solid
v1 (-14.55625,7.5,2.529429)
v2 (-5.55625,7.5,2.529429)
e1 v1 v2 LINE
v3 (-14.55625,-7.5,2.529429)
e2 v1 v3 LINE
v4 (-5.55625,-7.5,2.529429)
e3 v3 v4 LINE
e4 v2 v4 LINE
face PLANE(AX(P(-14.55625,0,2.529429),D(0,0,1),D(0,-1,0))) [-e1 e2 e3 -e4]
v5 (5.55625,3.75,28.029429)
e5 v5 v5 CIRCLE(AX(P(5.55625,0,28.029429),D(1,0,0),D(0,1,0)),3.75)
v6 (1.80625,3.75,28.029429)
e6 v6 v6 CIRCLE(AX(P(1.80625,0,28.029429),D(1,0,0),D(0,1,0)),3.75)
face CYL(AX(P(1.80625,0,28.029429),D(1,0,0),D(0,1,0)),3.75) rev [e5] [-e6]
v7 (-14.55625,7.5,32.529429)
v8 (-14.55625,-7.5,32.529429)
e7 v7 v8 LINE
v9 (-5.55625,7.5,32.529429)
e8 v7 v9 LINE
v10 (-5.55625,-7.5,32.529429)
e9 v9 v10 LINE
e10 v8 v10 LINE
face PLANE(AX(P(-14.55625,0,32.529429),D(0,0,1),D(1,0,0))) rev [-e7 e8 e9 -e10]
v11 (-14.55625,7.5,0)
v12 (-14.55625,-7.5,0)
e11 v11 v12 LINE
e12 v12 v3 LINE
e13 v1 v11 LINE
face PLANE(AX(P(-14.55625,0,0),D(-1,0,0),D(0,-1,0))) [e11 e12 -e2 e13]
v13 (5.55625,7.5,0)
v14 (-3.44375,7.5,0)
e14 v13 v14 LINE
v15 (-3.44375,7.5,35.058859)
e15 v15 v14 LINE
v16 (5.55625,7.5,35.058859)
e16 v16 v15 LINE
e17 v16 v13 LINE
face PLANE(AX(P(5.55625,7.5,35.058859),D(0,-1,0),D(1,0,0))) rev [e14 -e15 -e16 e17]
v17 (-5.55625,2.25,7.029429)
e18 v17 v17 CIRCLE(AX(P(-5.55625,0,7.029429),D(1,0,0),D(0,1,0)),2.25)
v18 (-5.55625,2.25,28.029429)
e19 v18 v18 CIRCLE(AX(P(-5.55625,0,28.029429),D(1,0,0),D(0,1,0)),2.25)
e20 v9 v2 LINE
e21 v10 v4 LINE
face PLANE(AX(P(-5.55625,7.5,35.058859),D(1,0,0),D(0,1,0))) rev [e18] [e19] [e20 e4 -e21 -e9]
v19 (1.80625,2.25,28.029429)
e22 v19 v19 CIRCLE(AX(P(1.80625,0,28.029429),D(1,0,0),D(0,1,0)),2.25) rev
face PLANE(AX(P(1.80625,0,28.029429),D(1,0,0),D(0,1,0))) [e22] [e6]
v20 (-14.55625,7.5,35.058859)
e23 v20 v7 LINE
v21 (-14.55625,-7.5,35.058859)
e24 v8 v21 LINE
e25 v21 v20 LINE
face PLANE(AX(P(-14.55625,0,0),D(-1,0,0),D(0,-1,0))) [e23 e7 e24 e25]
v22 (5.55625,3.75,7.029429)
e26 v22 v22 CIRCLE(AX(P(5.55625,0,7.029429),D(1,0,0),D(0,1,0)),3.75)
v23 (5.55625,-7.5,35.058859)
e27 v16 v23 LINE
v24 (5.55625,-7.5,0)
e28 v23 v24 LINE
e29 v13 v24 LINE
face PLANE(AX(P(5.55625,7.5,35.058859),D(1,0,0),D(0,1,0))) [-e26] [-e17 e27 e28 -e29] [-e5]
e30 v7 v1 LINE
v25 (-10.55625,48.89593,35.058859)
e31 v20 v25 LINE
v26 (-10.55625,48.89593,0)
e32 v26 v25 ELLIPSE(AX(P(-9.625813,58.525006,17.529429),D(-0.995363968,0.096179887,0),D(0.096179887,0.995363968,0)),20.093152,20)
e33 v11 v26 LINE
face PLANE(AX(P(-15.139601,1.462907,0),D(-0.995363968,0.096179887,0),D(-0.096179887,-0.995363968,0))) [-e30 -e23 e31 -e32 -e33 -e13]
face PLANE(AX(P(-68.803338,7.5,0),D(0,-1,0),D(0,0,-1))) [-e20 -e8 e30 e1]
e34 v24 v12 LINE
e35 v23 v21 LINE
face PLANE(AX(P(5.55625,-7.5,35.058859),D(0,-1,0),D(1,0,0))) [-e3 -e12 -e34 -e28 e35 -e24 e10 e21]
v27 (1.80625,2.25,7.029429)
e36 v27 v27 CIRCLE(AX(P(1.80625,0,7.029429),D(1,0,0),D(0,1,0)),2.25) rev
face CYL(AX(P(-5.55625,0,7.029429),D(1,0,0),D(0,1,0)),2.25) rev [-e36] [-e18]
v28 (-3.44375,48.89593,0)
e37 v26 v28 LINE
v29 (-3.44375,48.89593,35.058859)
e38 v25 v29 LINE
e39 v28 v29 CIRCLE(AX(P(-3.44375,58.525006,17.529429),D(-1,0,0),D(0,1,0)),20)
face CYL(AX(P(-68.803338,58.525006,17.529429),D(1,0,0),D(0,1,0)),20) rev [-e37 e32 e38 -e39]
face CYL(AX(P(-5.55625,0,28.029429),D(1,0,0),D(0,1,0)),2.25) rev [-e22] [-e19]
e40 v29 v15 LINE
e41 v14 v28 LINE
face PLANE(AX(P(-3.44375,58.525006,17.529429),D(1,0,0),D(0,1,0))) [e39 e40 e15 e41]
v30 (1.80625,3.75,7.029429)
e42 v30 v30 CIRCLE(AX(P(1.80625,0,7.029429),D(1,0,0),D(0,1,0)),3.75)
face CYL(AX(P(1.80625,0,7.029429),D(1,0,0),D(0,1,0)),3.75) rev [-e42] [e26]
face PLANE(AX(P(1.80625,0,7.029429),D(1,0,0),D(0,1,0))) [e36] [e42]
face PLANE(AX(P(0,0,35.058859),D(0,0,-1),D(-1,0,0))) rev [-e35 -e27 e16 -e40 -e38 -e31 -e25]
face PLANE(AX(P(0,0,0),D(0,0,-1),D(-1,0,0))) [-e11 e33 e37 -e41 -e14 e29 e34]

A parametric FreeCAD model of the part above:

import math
import FreeCAD as App
import Part
import Sketcher

V = App.Vector

doc = App.newDocument("Part")
params = doc.addObject("Spreadsheet::Sheet", "Params")
for row, (alias, value) in enumerate([
    ("sketch1_height", "15 mm"),
    ("pad1_length", "35.058859 mm"),
    ("sketch2_diameter", "4.5 mm"),
    ("sketch3_diameter", "7.5 mm"),
    ("pocket2_length", "3.75 mm"),
    ("sketch4_width", "15 mm"),
    ("pad2_length", "9 mm"),
    ("sketch5_radius", "20 mm"),
    ("pad3_length", "11.1125 mm"),
], start=1):
    params.set(f"A{row}", alias)
    params.set(f"B{row}", "=" + value)
    params.setAlias(f"B{row}", alias)

body = doc.addObject("PartDesign::Body", "Body")

sketch1 = body.newObject("Sketcher::SketchObject", "Sketch")
sketch1.AttachmentSupport = (doc.getObject("XY_Plane"), [""])
sketch1.MapMode = "FlatFace"
sketch1.addGeometry([
    Part.LineSegment(V(-6, 8, 0), V(-6, -8, 0)),
    Part.LineSegment(V(-6, -8, 0), V(6, -8, 0)),
    Part.LineSegment(V(6, -8, 0), V(6, 8, 0)),
    Part.LineSegment(V(6, 8, 0), V(-6, 8, 0)),
], False)
sketch1.addConstraint([
    Sketcher.Constraint("Coincident", 0, 2, 1, 1),
    Sketcher.Constraint("Coincident", 1, 2, 2, 1),
    Sketcher.Constraint("Coincident", 2, 2, 3, 1),
    Sketcher.Constraint("Coincident", 3, 2, 0, 1),
    Sketcher.Constraint("Vertical", 0),
    Sketcher.Constraint("Horizontal", 1),
    Sketcher.Constraint("Vertical", 2),
    Sketcher.Constraint("Horizontal", 3),
    Sketcher.Constraint("Symmetric", 0, 2, 2, 2, -1, 1),
    Sketcher.Constraint("DistanceY", 0, 2, 0, 1, 15.0),
    Sketcher.Constraint("DistanceX", 1, 1, 1, 2, 11.1125),
])
sketch1.setExpression("Constraints[9]", "Params.sketch1_height")
pad1 = body.newObject("PartDesign::Pad", "Pad")
pad1.Profile = sketch1
pad1.setExpression("Length", "Params.pad1_length")

sketch2 = body.newObject("Sketcher::SketchObject", "Sketch001")
sketch2.AttachmentSupport = (doc.getObject("YZ_Plane"), [""])
sketch2.MapMode = "FlatFace"
sketch2.AttachmentOffset = App.Placement(V(0, 0, 5.55625), App.Rotation())
sketch2.addGeometry([
    Part.Circle(V(0, 28, 0), V(0, 0, 1), 2.2),
    Part.Circle(V(0, 7, 0), V(0, 0, 1), 2.2),
], False)
sketch2.addConstraint([
    Sketcher.Constraint("Equal", 0, 1),
    Sketcher.Constraint("PointOnObject", 0, 3, -2),
    Sketcher.Constraint("PointOnObject", 1, 3, -2),
    Sketcher.Constraint("Diameter", 0, 4.5),
    Sketcher.Constraint("DistanceY", 1, 3, 0, 3, 21.0),
    Sketcher.Constraint("DistanceY", -1, 1, 0, 3, 28.029429),
])
sketch2.setExpression("Constraints[3]", "Params.sketch2_diameter")
pocket1 = body.newObject("PartDesign::Pocket", "Pocket")
pocket1.Profile = sketch2
pocket1.Type = "ThroughAll"

sketch3 = body.newObject("Sketcher::SketchObject", "Sketch002")
sketch3.AttachmentSupport = (doc.getObject("YZ_Plane"), [""])
sketch3.MapMode = "FlatFace"
sketch3.AttachmentOffset = App.Placement(V(0, 0, 5.55625), App.Rotation())
sketch3.addGeometry([
    Part.Circle(V(0, 28, 0), V(0, 0, 1), 3.8),
    Part.Circle(V(0, 7, 0), V(0, 0, 1), 3.8),
], False)
sketch3.addConstraint([
    Sketcher.Constraint("Equal", 0, 1),
    Sketcher.Constraint("PointOnObject", 0, 3, -2),
    Sketcher.Constraint("PointOnObject", 1, 3, -2),
    Sketcher.Constraint("Diameter", 0, 7.5),
    Sketcher.Constraint("DistanceY", 1, 3, 0, 3, 21.0),
    Sketcher.Constraint("DistanceY", -1, 1, 0, 3, 28.029429),
])
sketch3.setExpression("Constraints[3]", "Params.sketch3_diameter")
pocket2 = body.newObject("PartDesign::Pocket", "Pocket001")
pocket2.Profile = sketch3
pocket2.setExpression("Length", "Params.pocket2_length")

sketch4 = body.newObject("Sketcher::SketchObject", "Sketch003")
sketch4.AttachmentSupport = (doc.getObject("YZ_Plane"), [""])
sketch4.MapMode = "FlatFace"
sketch4.AttachmentOffset = App.Placement(V(0, 0, -5.55625), App.Rotation())
sketch4.addGeometry([
    Part.LineSegment(V(7.5, 0, 0), V(-7.5, 0, 0)),
    Part.LineSegment(V(-7.5, 0, 0), V(-7.5, 2.5, 0)),
    Part.LineSegment(V(-7.5, 2.5, 0), V(7.5, 2.5, 0)),
    Part.LineSegment(V(7.5, 2.5, 0), V(7.5, 0, 0)),
    Part.LineSegment(V(7.5, 32.5, 0), V(-7.5, 32.5, 0)),
    Part.LineSegment(V(-7.5, 32.5, 0), V(-7.5, 35.1, 0)),
    Part.LineSegment(V(-7.5, 35.1, 0), V(7.5, 35.1, 0)),
    Part.LineSegment(V(7.5, 35.1, 0), V(7.5, 32.5, 0)),
], False)
sketch4.addConstraint([
    Sketcher.Constraint("Coincident", 0, 2, 1, 1),
    Sketcher.Constraint("Coincident", 1, 2, 2, 1),
    Sketcher.Constraint("Coincident", 2, 2, 3, 1),
    Sketcher.Constraint("Coincident", 3, 2, 0, 1),
    Sketcher.Constraint("Coincident", 4, 2, 5, 1),
    Sketcher.Constraint("Coincident", 5, 2, 6, 1),
    Sketcher.Constraint("Coincident", 6, 2, 7, 1),
    Sketcher.Constraint("Coincident", 7, 2, 4, 1),
    Sketcher.Constraint("Horizontal", 0),
    Sketcher.Constraint("Vertical", 1),
    Sketcher.Constraint("Horizontal", 2),
    Sketcher.Constraint("Vertical", 3),
    Sketcher.Constraint("Horizontal", 4),
    Sketcher.Constraint("Vertical", 5),
    Sketcher.Constraint("Horizontal", 6),
    Sketcher.Constraint("Vertical", 7),
    Sketcher.Constraint("Symmetric", 0, 2, 3, 2, -1, 1),
    Sketcher.Constraint("Vertical", 1, 2, 4, 2),
    Sketcher.Constraint("Vertical", 3, 2, 6, 2),
    Sketcher.Constraint("Equal", 3, 5),
    Sketcher.Constraint("DistanceX", 0, 2, 0, 1, 15.0),
    Sketcher.Constraint("DistanceY", 1, 2, 4, 2, 30.0),
    Sketcher.Constraint("DistanceY", 1, 1, 1, 2, 2.529429),
])
sketch4.setExpression("Constraints[20]", "Params.sketch4_width")
pad2 = body.newObject("PartDesign::Pad", "Pad001")
pad2.Profile = sketch4
pad2.setExpression("Length", "Params.pad2_length")
pad2.Reversed = True

sketch5 = body.newObject("Sketcher::SketchObject", "Sketch004")
sketch5.AttachmentSupport = (doc.getObject("YZ_Plane"), [""])
sketch5.MapMode = "FlatFace"
sketch5.AttachmentOffset = App.Placement(V(0, 0, -3.44375), App.Rotation())
sketch5.addGeometry([
    Part.LineSegment(V(8, 35, 0), V(8, 0, 0)),
    Part.LineSegment(V(8, 0, 0), V(49, 0, 0)),
    Part.ArcOfCircle(Part.Circle(V(59, 18, 0), V(0, 0, 1), 20), math.radians(119), math.radians(241)),
    Part.LineSegment(V(49, 35, 0), V(8, 35, 0)),
], False)
sketch5.addConstraint([
    Sketcher.Constraint("Coincident", 0, 2, 1, 1),
    Sketcher.Constraint("Coincident", 1, 2, 2, 2),
    Sketcher.Constraint("Coincident", 2, 1, 3, 1),
    Sketcher.Constraint("Coincident", 3, 2, 0, 1),
    Sketcher.Constraint("Vertical", 0),
    Sketcher.Constraint("Horizontal", 1),
    Sketcher.Constraint("Horizontal", 3),
    Sketcher.Constraint("PointOnObject", 0, 2, -1),
    Sketcher.Constraint("Vertical", 1, 2, 2, 1),
    Sketcher.Constraint("Radius", 2, 20.0),
    Sketcher.Constraint("DistanceX", -1, 1, 0, 2, 7.5),
    Sketcher.Constraint("DistanceX", 1, 1, 1, 2, 41.39593),
    Sketcher.Constraint("DistanceY", 0, 2, 0, 1, 35.058859),
])
sketch5.setExpression("Constraints[9]", "Params.sketch5_radius")
pad3 = body.newObject("PartDesign::Pad", "Pad002")
pad3.Profile = sketch5
pad3.setExpression("Length", "Params.pad3_length")
pad3.Reversed = True

sketch6 = body.newObject("Sketcher::SketchObject", "Sketch005")
sketch6.Placement = App.Placement(V(-15.139601, 1.462907, 0), App.Rotation(V(0, 0, -1), V(0.096179887, 0.995363968, 0), V(0.995363968, -0.096179887, 0), "ZXY"))
sketch6.addGeometry([
    Part.LineSegment(V(-48, 57, 0), V(-48, -8, 0)),
    Part.LineSegment(V(-48, -8, 0), V(14, -8, 0)),
    Part.LineSegment(V(14, -8, 0), V(14, 57, 0)),
    Part.LineSegment(V(14, 57, 0), V(-48, 57, 0)),
], False)
sketch6.addConstraint([
    Sketcher.Constraint("Coincident", 0, 2, 1, 1),
    Sketcher.Constraint("Coincident", 1, 2, 2, 1),
    Sketcher.Constraint("Coincident", 2, 2, 3, 1),
    Sketcher.Constraint("Coincident", 3, 2, 0, 1),
    Sketcher.Constraint("Vertical", 0),
    Sketcher.Constraint("Horizontal", 1),
    Sketcher.Constraint("Vertical", 2),
    Sketcher.Constraint("Horizontal", 3),
    Sketcher.Constraint("DistanceY", 0, 2, 0, 1, 64.835459),
    Sketcher.Constraint("DistanceY", 0, 2, -1, 1, 8.0425),
    Sketcher.Constraint("DistanceX", 1, 1, 1, 2, 61.996733),
    Sketcher.Constraint("DistanceX", 0, 2, -1, 1, 48.345809),
])
pocket3 = body.newObject("PartDesign::Pocket", "Pocket002")
pocket3.Profile = sketch6
pocket3.Type = "ThroughAll"

doc.recompute()
